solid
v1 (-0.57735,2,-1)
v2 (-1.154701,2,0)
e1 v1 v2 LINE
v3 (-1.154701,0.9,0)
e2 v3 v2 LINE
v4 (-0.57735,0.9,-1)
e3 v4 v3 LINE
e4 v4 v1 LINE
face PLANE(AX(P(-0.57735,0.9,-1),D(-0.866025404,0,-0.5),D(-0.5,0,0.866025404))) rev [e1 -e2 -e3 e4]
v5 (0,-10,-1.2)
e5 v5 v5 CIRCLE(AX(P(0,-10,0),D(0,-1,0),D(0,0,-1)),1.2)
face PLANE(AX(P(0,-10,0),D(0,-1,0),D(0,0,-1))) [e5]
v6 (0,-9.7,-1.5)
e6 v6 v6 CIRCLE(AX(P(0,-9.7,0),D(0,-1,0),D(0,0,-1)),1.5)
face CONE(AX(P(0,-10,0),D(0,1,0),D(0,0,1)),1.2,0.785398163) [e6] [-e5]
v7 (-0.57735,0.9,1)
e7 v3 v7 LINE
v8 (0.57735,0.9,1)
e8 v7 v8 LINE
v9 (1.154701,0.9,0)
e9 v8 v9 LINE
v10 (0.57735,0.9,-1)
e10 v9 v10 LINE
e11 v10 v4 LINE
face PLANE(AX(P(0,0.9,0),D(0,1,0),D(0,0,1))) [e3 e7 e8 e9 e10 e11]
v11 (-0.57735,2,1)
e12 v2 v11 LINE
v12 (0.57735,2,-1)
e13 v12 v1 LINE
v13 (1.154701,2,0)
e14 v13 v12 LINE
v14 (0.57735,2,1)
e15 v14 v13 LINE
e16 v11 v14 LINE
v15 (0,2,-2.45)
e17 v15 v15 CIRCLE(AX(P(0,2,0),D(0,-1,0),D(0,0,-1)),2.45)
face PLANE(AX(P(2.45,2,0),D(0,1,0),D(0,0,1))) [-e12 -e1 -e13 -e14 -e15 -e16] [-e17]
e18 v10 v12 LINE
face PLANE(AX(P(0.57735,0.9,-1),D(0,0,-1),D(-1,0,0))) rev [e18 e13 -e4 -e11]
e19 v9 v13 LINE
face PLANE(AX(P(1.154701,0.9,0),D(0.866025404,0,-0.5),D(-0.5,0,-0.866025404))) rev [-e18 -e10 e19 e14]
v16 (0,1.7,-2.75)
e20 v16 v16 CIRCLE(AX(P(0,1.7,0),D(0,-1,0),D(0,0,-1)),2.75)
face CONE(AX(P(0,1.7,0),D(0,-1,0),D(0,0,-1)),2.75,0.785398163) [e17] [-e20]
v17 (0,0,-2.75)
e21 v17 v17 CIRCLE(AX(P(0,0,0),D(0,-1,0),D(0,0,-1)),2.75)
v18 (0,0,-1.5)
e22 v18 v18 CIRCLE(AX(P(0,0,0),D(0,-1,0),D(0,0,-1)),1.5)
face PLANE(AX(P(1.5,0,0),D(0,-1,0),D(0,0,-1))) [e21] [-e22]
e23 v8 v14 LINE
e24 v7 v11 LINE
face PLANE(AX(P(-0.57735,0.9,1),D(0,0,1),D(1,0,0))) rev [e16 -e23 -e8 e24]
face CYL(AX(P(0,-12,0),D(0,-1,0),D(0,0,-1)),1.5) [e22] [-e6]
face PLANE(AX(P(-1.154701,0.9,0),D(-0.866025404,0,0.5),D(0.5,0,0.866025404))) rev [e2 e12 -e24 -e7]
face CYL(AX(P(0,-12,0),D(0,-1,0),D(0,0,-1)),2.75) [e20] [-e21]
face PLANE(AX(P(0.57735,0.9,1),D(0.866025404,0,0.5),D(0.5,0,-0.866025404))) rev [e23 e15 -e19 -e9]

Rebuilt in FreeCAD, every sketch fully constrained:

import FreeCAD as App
import Part
import Sketcher

V = App.Vector
Q = App.Units.Quantity

doc = App.newDocument("Part")
params = doc.addObject("Spreadsheet::Sheet", "Params")
for row, (alias, value) in enumerate([
    ("sketch1_height", "12 mm"),
    ("sketch1_width", "1.2 mm"),
    ("sketch1_height2", "9.7 mm"),
    ("sketch1_height3", "1.7 mm"),
    ("sketch1_width2", "1.25 mm"),
    ("revolution_angle", "360 deg"),
    ("pocket1_length", "1.1 mm"),
], start=1):
    params.set(f"A{row}", alias)
    params.set(f"B{row}", "=" + value)
    params.setAlias(f"B{row}", alias)

body = doc.addObject("PartDesign::Body", "Body")

sketch1 = doc.addObject("Sketcher::SketchObject", "Sketch")
body.addObject(sketch1)
sketch1.AttachmentSupport = (doc.XY_Plane, [""])
sketch1.MapMode = "FlatFace"
sketch1.addGeometry(Part.LineSegment(V(0, -10, 0), V(1.2, -10, 0)), False)
sketch1.addGeometry(Part.LineSegment(V(1.2, -10, 0), V(1.5, -9.7, 0)), False)
sketch1.addGeometry(Part.LineSegment(V(1.5, -9.7, 0), V(1.5, 0, 0)), False)
sketch1.addGeometry(Part.LineSegment(V(1.5, 0, 0), V(2.75, 0, 0)), False)
sketch1.addGeometry(Part.LineSegment(V(2.75, 0, 0), V(2.75, 1.7, 0)), False)
sketch1.addGeometry(Part.LineSegment(V(2.75, 1.7, 0), V(2.45, 2, 0)), False)
sketch1.addGeometry(Part.LineSegment(V(2.45, 2, 0), V(0, 2, 0)), False)
sketch1.addGeometry(Part.LineSegment(V(0, 2, 0), V(0, -10, 0)), False)
sketch1.addConstraint(Sketcher.Constraint("Coincident", 0, 2, 1, 1))
sketch1.addConstraint(Sketcher.Constraint("Coincident", 1, 2, 2, 1))
sketch1.addConstraint(Sketcher.Constraint("Coincident", 2, 2, 3, 1))
sketch1.addConstraint(Sketcher.Constraint("Coincident", 3, 2, 4, 1))
sketch1.addConstraint(Sketcher.Constraint("Coincident", 4, 2, 5, 1))
sketch1.addConstraint(Sketcher.Constraint("Coincident", 5, 2, 6, 1))
sketch1.addConstraint(Sketcher.Constraint("Coincident", 6, 2, 7, 1))
sketch1.addConstraint(Sketcher.Constraint("Coincident", 7, 2, 0, 1))
sketch1.addConstraint(Sketcher.Constraint("Horizontal", 0))
sketch1.addConstraint(Sketcher.Constraint("Vertical", 2))
sketch1.addConstraint(Sketcher.Constraint("Horizontal", 3))
sketch1.addConstraint(Sketcher.Constraint("Vertical", 4))
sketch1.addConstraint(Sketcher.Constraint("Horizontal", 6))
sketch1.addConstraint(Sketcher.Constraint("Vertical", 7))
sketch1.addConstraint(Sketcher.Constraint("PointOnObject", 2, 2, -1))
sketch1.addConstraint(Sketcher.Constraint("PointOnObject", 6, 2, -2))
sketch1.addConstraint(Sketcher.Constraint("Perpendicular", 1, 5))
sketch1.addConstraint(Sketcher.Constraint("Equal", 1, 5))
sketch1.addConstraint(Sketcher.Constraint("DistanceY", 7, 2, 7, 1, Q("12 mm")))
sketch1.addConstraint(Sketcher.Constraint("Angle", 1, Q("45 deg")))
sketch1.addConstraint(Sketcher.Constraint("DistanceX", 0, 1, 0, 2, Q("1.2 mm")))
sketch1.addConstraint(Sketcher.Constraint("DistanceY", 2, 1, 2, 2, Q("9.7 mm")))
sketch1.addConstraint(Sketcher.Constraint("DistanceY", 4, 1, 4, 2, Q("1.7 mm")))
sketch1.addConstraint(Sketcher.Constraint("DistanceX", 3, 1, 3, 2, Q("1.25 mm")))
sketch1.setExpression("Constraints[18]", "Params.sketch1_height")
sketch1.setExpression("Constraints[20]", "Params.sketch1_width")
sketch1.setExpression("Constraints[21]", "Params.sketch1_height2")
sketch1.setExpression("Constraints[22]", "Params.sketch1_height3")
sketch1.setExpression("Constraints[23]", "Params.sketch1_width2")
revolution = doc.addObject("PartDesign::Revolution", "Revolution")
body.addObject(revolution)
revolution.Profile = sketch1
revolution.ReferenceAxis = (sketch1, ["V_Axis"])
revolution.setExpression("Angle", "Params.revolution_angle")

sketch2 = doc.addObject("Sketcher::SketchObject", "Sketch001")
body.addObject(sketch2)
sketch2.AttachmentSupport = (doc.XZ_Plane, [""])
sketch2.MapMode = "FlatFace"
sketch2.AttachmentOffset = App.Placement(V(0, 0, -2), App.Rotation())
sketch2.addGeometry(Part.LineSegment(V(1.2, 0, 0), V(0.6, -1, 0)), False)
sketch2.addGeometry(Part.LineSegment(V(0.6, -1, 0), V(-0.6, -1, 0)), False)
sketch2.addGeometry(Part.LineSegment(V(-0.6, -1, 0), V(-1.2, 0, 0)), False)
sketch2.addGeometry(Part.LineSegment(V(-1.2, 0, 0), V(-0.6, 1, 0)), False)
sketch2.addGeometry(Part.LineSegment(V(-0.6, 1, 0), V(0.6, 1, 0)), False)
sketch2.addGeometry(Part.LineSegment(V(0.6, 1, 0), V(1.2, 0, 0)), False)
sketch2.addConstraint(Sketcher.Constraint("Coincident", 0, 2, 1, 1))
sketch2.addConstraint(Sketcher.Constraint("Coincident", 1, 2, 2, 1))
sketch2.addConstraint(Sketcher.Constraint("Coincident", 2, 2, 3, 1))
sketch2.addConstraint(Sketcher.Constraint("Coincident", 3, 2, 4, 1))
sketch2.addConstraint(Sketcher.Constraint("Coincident", 4, 2, 5, 1))
sketch2.addConstraint(Sketcher.Constraint("Coincident", 5, 2, 0, 1))
sketch2.addConstraint(Sketcher.Constraint("Horizontal", 1))
sketch2.addConstraint(Sketcher.Constraint("Horizontal", 4))
sketch2.addConstraint(Sketcher.Constraint("Symmetric", 0, 2, 3, 2, -1, 1))
sketch2.addConstraint(Sketcher.Constraint("Symmetric", 2, 2, 5, 2, -1, 1))
sketch2.addConstraint(Sketcher.Constraint("PointOnObject", 2, 2, -1))
sketch2.addConstraint(Sketcher.Constraint("Parallel", 2, 5))
sketch2.addConstraint(Sketcher.Constraint("Vertical", 1, 2, 3, 2))
sketch2.addConstraint(Sketcher.Constraint("Angle", 0, Q("-120 deg")))
sketch2.addConstraint(Sketcher.Constraint("DistanceY", 0, 2, -1, 1, Q("1 mm")))
sketch2.addConstraint(Sketcher.Constraint("DistanceX", 1, 2, 1, 1, Q("1.154701 mm")))
pocket1 = doc.addObject("PartDesign::Pocket", "Pocket")
body.addObject(pocket1)
pocket1.Profile = sketch2
pocket1.setExpression("Length", "Params.pocket1_length")
pocket1.Reversed = True

doc.recompute()
